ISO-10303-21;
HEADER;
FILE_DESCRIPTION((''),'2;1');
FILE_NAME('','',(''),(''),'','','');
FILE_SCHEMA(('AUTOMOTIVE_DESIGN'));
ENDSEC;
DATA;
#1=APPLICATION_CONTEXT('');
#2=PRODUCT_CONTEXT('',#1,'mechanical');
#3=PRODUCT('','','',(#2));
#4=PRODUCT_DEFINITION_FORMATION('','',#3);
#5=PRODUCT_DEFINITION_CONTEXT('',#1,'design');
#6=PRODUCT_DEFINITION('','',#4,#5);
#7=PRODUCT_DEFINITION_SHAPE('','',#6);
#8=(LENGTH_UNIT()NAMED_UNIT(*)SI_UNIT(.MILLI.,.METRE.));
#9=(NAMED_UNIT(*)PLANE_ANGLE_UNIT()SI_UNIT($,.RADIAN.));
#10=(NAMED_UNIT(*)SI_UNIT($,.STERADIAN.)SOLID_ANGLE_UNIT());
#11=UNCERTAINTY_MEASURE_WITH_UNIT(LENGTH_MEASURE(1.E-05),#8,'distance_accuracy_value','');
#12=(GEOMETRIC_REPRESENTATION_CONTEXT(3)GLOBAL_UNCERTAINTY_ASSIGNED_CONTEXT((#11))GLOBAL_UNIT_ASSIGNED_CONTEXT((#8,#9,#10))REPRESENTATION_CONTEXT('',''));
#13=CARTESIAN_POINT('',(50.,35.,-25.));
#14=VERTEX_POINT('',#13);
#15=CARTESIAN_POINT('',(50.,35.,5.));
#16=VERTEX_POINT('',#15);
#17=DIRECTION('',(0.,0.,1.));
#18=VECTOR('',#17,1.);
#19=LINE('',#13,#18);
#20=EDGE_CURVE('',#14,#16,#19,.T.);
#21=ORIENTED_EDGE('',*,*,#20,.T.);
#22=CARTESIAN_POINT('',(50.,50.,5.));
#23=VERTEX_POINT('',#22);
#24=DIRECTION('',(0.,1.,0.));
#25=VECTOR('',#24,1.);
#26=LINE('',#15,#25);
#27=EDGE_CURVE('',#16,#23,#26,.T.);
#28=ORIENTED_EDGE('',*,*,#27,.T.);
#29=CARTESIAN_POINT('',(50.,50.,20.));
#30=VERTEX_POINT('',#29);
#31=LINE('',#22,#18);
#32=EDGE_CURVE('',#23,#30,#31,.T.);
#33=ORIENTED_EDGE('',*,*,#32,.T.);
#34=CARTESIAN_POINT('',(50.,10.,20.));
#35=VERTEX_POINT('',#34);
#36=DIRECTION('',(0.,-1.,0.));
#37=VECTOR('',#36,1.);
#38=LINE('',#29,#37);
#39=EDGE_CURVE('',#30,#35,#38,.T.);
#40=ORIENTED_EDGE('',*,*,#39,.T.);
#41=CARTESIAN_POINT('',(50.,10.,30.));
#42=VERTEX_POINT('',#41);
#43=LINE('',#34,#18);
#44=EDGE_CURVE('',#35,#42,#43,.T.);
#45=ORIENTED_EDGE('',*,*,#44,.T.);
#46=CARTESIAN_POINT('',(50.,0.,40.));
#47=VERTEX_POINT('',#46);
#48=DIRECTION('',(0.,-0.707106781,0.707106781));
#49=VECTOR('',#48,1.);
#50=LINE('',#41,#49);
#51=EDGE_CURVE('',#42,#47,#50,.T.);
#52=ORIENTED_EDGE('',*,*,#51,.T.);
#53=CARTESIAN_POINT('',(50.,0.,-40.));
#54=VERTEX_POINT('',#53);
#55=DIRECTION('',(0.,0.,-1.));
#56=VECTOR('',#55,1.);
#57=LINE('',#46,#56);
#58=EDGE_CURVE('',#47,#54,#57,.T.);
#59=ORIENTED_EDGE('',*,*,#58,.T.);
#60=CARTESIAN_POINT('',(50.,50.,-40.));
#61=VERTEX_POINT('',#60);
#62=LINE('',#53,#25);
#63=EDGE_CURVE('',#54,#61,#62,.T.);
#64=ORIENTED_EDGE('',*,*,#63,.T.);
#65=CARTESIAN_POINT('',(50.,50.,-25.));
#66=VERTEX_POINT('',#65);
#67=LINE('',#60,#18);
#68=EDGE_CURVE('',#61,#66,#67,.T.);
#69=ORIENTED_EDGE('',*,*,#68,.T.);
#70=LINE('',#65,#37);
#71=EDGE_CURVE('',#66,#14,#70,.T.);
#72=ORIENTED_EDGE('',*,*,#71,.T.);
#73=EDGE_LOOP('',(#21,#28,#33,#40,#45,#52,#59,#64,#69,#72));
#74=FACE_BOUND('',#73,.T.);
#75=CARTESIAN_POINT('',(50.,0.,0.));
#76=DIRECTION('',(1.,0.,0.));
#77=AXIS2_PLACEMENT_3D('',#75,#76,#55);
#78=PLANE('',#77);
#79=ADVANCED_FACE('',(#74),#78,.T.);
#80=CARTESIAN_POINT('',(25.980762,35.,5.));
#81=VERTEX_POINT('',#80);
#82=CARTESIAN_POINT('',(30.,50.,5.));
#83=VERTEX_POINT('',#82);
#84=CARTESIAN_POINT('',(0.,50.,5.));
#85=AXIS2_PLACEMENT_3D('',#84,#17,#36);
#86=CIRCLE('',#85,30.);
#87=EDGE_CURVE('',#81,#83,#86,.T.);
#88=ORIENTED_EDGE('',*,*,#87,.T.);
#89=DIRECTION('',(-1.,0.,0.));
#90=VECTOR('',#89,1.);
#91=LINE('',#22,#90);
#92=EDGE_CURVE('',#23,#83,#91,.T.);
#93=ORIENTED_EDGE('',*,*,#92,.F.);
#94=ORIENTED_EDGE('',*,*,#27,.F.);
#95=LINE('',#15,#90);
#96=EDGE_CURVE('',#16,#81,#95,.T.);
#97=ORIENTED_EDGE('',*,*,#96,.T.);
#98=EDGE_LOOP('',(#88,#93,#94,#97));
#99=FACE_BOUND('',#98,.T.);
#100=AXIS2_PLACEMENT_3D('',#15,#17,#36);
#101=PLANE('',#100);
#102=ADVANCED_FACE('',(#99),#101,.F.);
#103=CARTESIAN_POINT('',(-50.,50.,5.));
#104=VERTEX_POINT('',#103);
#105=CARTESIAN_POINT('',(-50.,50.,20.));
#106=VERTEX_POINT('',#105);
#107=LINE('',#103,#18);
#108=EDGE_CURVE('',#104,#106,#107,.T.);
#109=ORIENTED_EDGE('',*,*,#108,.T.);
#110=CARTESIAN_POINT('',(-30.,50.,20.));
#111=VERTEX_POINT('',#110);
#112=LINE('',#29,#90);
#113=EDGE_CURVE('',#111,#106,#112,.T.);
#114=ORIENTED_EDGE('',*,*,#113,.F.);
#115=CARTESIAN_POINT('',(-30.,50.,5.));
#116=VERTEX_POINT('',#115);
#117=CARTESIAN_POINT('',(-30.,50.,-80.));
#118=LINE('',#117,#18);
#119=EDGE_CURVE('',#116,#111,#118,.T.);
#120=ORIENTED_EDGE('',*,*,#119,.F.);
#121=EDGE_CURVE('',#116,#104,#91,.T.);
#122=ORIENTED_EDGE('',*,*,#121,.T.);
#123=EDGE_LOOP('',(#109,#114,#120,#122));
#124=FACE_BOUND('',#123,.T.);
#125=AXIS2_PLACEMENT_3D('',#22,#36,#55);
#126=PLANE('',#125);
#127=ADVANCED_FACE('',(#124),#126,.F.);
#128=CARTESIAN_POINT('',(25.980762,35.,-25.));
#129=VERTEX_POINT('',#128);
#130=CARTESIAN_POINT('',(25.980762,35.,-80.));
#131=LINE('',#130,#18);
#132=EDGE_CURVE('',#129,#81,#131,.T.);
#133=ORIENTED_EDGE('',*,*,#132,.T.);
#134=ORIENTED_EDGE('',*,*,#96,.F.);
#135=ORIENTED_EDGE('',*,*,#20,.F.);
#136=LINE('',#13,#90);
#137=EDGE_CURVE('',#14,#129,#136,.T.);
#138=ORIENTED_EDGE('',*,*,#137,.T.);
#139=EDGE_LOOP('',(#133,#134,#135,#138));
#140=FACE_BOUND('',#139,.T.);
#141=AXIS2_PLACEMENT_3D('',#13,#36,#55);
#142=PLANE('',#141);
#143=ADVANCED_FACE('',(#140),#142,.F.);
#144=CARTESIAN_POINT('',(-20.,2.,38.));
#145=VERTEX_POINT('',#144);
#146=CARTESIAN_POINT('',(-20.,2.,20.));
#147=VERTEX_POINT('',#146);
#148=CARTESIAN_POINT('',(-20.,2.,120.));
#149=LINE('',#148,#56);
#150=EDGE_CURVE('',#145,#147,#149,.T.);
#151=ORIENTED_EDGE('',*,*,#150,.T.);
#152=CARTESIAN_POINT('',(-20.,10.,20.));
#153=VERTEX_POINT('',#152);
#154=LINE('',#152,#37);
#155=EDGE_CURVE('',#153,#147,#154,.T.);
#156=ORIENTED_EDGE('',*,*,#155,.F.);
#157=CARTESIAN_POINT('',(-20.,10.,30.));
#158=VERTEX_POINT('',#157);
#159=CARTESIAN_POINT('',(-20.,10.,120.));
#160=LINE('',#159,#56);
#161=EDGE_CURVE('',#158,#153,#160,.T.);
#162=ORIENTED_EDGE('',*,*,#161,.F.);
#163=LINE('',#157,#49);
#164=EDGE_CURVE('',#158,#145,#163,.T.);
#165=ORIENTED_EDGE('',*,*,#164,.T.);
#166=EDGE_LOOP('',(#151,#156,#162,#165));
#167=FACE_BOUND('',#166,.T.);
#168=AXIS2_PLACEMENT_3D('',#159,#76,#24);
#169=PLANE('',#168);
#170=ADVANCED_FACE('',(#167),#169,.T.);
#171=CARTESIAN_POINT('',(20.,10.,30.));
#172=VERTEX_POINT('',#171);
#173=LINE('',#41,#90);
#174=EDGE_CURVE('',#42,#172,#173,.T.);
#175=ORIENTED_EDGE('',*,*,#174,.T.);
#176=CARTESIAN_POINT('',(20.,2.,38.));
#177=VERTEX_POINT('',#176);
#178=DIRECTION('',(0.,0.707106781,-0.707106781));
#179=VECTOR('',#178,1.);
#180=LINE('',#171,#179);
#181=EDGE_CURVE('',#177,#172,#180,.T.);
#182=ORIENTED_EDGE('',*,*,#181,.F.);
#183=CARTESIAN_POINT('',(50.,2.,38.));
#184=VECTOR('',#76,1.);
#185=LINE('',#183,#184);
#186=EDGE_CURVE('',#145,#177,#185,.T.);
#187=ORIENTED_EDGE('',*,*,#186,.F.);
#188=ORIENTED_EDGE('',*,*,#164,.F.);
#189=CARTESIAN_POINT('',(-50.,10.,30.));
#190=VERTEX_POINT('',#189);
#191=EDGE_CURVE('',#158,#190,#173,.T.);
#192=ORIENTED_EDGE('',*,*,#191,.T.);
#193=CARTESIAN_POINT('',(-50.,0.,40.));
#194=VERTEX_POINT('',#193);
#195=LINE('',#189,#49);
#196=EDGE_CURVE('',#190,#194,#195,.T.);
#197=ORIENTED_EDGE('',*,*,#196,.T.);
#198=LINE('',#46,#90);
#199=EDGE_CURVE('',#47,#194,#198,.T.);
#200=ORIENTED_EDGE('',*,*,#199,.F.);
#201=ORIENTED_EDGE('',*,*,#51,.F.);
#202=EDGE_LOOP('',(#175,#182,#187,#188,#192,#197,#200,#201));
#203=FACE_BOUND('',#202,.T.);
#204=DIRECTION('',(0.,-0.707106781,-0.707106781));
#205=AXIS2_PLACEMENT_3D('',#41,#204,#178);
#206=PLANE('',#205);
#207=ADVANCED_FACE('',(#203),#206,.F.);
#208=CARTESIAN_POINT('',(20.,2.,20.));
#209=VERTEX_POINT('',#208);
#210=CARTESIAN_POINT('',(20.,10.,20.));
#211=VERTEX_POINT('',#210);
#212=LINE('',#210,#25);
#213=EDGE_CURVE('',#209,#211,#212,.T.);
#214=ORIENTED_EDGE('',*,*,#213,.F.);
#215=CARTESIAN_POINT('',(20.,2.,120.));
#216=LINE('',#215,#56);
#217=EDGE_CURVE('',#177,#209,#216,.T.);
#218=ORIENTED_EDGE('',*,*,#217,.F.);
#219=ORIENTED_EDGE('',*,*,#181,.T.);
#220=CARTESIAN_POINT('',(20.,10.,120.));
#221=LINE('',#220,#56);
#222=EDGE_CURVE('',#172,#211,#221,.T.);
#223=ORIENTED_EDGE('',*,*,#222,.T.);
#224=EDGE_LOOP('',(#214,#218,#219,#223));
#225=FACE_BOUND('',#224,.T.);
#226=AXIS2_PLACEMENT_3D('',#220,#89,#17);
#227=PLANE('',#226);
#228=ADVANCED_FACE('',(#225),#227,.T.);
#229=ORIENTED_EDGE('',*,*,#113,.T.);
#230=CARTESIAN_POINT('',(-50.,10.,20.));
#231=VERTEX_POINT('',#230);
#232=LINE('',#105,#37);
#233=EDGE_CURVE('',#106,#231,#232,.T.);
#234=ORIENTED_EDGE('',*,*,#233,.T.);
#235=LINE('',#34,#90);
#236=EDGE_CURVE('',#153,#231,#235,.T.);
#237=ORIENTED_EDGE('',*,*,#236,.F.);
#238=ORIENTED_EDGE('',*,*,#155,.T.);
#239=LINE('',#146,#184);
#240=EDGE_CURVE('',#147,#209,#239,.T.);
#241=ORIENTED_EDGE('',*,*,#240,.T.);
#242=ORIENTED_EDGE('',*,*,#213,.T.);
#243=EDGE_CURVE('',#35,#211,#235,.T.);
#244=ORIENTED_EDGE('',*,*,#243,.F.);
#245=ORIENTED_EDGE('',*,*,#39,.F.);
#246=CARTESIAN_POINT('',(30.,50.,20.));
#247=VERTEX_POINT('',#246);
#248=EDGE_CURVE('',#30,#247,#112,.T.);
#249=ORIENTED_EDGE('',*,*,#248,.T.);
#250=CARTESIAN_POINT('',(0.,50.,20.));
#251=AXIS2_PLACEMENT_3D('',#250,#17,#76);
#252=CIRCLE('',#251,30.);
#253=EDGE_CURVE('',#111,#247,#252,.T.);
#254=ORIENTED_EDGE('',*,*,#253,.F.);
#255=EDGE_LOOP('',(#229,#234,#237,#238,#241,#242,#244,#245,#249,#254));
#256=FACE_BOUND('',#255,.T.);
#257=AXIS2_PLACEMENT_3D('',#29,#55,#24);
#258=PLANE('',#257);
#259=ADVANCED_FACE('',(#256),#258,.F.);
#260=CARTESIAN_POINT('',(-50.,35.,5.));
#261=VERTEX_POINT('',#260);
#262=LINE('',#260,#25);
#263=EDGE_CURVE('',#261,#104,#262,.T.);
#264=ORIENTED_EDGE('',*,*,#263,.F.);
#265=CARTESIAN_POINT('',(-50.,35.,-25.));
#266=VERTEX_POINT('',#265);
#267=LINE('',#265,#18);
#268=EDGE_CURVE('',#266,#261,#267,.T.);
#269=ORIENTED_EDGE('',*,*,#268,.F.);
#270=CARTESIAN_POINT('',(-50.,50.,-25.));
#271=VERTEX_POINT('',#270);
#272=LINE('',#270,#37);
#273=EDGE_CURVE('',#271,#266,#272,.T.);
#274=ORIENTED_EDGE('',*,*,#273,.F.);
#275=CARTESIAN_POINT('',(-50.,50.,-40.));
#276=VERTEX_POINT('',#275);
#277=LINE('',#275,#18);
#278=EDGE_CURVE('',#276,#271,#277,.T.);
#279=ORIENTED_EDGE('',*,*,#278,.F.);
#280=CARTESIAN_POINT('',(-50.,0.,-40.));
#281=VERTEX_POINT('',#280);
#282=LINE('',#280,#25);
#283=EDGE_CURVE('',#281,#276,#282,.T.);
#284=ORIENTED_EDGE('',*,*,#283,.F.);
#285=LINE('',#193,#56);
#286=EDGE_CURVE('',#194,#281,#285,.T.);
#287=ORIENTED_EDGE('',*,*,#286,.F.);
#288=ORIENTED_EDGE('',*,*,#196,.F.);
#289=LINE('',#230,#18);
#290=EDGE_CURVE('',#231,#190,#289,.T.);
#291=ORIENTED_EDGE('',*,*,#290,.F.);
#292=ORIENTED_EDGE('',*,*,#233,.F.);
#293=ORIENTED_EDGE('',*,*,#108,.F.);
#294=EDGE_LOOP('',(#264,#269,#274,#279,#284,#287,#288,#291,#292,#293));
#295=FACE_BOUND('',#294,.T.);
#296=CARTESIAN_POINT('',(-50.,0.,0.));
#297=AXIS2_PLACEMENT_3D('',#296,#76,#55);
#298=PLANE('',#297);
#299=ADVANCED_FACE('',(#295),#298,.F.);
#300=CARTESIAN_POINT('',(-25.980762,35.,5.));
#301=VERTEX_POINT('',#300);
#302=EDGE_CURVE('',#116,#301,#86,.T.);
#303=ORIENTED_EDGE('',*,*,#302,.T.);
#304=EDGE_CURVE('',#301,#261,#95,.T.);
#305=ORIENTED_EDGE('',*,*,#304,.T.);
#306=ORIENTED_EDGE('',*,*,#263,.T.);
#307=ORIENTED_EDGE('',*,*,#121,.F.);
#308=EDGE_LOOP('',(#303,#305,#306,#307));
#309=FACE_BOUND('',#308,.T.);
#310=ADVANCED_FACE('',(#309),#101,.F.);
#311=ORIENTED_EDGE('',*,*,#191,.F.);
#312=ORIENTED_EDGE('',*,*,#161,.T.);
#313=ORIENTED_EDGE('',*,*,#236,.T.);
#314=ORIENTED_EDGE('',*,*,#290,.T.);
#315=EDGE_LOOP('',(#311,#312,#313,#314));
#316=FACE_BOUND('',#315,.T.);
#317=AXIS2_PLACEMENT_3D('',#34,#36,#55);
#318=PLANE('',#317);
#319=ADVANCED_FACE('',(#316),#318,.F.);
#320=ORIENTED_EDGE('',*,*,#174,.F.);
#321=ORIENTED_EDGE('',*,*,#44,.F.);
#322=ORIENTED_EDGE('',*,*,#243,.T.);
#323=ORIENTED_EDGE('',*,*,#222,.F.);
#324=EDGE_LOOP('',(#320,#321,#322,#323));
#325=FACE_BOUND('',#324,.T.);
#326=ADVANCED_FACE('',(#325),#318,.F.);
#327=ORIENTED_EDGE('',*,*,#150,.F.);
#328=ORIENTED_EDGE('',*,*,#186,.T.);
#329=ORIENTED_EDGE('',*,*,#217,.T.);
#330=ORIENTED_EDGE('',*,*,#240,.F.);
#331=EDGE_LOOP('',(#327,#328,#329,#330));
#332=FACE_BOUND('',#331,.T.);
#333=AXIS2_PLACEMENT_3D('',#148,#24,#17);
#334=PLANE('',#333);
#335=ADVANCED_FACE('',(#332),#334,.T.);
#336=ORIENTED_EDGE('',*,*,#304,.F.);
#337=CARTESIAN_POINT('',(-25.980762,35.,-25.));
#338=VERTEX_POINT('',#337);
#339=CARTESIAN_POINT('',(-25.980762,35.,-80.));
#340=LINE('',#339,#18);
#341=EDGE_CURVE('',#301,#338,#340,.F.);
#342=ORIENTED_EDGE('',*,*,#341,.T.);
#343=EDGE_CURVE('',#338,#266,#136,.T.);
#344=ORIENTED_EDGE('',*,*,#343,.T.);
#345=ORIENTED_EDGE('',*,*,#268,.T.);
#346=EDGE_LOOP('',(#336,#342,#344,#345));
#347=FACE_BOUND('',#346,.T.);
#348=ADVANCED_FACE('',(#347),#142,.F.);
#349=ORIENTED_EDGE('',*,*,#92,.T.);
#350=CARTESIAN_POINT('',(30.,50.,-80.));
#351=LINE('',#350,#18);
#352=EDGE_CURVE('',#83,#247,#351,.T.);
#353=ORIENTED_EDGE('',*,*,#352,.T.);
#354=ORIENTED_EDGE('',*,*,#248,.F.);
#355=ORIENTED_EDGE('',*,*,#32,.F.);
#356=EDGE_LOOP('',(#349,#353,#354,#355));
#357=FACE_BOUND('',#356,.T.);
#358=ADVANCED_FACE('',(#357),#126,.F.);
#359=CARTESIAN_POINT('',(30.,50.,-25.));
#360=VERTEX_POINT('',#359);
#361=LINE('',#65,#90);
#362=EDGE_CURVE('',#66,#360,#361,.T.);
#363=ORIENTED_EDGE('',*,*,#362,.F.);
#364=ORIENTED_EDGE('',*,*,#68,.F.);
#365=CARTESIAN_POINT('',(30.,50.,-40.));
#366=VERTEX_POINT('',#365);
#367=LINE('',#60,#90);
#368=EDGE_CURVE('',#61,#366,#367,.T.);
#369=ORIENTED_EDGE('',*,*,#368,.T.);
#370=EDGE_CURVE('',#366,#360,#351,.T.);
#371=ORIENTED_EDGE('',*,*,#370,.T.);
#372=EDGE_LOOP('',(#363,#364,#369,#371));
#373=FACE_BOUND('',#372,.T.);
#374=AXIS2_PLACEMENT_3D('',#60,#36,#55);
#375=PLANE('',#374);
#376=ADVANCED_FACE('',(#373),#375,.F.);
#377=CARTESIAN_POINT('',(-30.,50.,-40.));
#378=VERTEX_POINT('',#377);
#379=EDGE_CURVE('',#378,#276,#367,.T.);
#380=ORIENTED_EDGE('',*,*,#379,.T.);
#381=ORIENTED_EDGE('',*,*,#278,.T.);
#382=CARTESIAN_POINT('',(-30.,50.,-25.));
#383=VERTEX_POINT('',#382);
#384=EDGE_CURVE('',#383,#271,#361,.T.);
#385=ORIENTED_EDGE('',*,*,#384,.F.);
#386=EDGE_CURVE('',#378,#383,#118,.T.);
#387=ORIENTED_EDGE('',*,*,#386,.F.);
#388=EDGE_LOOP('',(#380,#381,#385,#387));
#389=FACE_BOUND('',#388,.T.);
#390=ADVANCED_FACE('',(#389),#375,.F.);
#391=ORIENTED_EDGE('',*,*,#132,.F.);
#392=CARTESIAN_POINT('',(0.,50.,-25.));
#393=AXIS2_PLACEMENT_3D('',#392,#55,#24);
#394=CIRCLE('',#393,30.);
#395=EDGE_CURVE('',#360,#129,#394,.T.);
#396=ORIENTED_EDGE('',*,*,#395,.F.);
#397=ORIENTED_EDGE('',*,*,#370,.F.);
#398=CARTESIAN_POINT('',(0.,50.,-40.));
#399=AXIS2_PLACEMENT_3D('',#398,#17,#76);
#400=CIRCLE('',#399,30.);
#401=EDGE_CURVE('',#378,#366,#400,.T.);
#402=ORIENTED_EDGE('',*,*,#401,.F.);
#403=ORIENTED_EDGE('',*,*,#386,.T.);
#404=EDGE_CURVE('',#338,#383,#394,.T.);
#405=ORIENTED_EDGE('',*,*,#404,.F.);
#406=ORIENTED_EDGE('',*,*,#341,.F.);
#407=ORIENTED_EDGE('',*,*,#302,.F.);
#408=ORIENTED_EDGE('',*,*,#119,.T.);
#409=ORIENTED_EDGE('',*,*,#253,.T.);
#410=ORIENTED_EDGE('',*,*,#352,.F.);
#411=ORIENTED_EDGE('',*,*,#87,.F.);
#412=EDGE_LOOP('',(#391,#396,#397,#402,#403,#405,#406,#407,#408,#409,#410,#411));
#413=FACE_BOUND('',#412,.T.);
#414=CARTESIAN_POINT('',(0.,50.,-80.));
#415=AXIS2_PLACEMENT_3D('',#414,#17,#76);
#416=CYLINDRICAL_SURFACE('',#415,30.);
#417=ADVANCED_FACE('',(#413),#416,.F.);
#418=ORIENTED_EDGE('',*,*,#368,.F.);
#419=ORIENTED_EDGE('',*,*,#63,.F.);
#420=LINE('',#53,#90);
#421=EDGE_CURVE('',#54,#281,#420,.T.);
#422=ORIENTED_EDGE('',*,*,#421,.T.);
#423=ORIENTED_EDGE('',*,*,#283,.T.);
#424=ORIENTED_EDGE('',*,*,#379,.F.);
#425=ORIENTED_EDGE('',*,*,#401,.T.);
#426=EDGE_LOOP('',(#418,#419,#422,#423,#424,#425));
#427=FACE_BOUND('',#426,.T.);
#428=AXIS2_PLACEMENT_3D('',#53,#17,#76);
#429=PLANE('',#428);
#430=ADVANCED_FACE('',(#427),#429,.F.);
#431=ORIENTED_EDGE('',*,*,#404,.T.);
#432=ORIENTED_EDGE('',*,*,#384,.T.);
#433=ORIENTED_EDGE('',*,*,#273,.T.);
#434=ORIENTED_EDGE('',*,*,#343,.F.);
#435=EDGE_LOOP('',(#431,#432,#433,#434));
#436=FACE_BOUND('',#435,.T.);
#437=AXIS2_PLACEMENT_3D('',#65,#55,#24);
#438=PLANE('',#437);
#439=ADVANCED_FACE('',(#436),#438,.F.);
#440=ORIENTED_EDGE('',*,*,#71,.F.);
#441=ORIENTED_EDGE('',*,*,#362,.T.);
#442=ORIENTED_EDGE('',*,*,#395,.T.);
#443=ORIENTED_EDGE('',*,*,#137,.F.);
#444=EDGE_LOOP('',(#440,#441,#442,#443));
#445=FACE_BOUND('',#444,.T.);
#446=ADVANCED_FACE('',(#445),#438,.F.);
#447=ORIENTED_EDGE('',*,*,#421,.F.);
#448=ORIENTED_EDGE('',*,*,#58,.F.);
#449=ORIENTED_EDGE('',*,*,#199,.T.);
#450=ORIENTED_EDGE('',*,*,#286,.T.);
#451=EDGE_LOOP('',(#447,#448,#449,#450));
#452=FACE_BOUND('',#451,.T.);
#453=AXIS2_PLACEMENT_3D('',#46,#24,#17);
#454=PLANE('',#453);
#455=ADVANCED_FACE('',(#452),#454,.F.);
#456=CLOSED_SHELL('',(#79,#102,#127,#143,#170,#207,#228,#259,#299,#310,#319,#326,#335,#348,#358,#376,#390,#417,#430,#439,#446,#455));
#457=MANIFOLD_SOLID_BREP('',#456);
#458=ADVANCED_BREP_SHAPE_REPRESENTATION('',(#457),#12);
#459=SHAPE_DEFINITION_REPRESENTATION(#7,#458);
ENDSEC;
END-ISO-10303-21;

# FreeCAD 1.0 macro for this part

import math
import FreeCAD as App
import Part
import Sketcher


def add_polygon(sketch, points):
    """Adds a closed chain of lines whose ends are joined by coincident constraints."""
    first, n = sketch.GeometryCount, len(points)
    for a, b in zip(points, points[1:] + points[:1]):
        sketch.addGeometry(Part.LineSegment(App.Vector(*a, 0), App.Vector(*b, 0)), False)
    for i in range(n):
        sketch.addConstraint(Sketcher.Constraint("Coincident", first + i, 2, first + (i + 1) % n, 1))

doc = App.newDocument("Part")
body = doc.addObject("PartDesign::Body", "Body")

# Sketch on YZ plane
sketch1 = doc.addObject("Sketcher::SketchObject", "Sketch")
body.addObject(sketch1)
sketch1.AttachmentSupport = (doc.YZ_Plane, [""])
sketch1.MapMode = "FlatFace"
add_polygon(sketch1, [(0, 40), (0, -40), (50, -40), (50, -25), (35, -25), (35, 5), (50, 5), (50, 20), (10, 20), (10, 30)])  # lines 0-9
sketch1.addConstraint(Sketcher.Constraint("Vertical", 0))
sketch1.addConstraint(Sketcher.Constraint("Horizontal", 1))
sketch1.addConstraint(Sketcher.Constraint("Vertical", 2))
sketch1.addConstraint(Sketcher.Constraint("Horizontal", 3))
sketch1.addConstraint(Sketcher.Constraint("Vertical", 4))
sketch1.addConstraint(Sketcher.Constraint("Horizontal", 5))
sketch1.addConstraint(Sketcher.Constraint("Vertical", 6))
sketch1.addConstraint(Sketcher.Constraint("Horizontal", 7))
sketch1.addConstraint(Sketcher.Constraint("Vertical", 8))
sketch1.addConstraint(Sketcher.Constraint("Symmetric", 0, 2, 9, 2, -1, 1))
sketch1.addConstraint(Sketcher.Constraint("Vertical", 2, 2, 5, 2))
sketch1.addConstraint(Sketcher.Constraint("Equal", 5, 2))
sketch1.addConstraint(Sketcher.Constraint("Equal", 2, 6))
sketch1.addConstraint(Sketcher.Constraint("DistanceX", 1, 1, 1, 2, 50.0))
sketch1.addConstraint(Sketcher.Constraint("DistanceX", 3, 2, 3, 1, 15.0))
sketch1.addConstraint(Sketcher.Constraint("DistanceX", 7, 2, 7, 1, 40.0))
sketch1.addConstraint(Sketcher.Constraint("DistanceY", 0, 2, 0, 1, 80.0))
sketch1.addConstraint(Sketcher.Constraint("DistanceY", 4, 1, 4, 2, 30.0))
sketch1.addConstraint(Sketcher.Constraint("DistanceY", 8, 1, 8, 2, 10.0))
pad1 = doc.addObject("PartDesign::Pad", "Pad")
body.addObject(pad1)
pad1.Profile = sketch1
pad1.Length = 100
pad1.Midplane = True

# Sketch on XY plane
sketch2 = doc.addObject("Sketcher::SketchObject", "Sketch001")
body.addObject(sketch2)
sketch2.AttachmentSupport = (doc.XY_Plane, [""])
sketch2.MapMode = "FlatFace"
sketch2.AttachmentOffset = App.Placement(App.Vector(0, 0, 20), App.Rotation())
sketch2.addGeometry(Part.LineSegment(App.Vector(30, 50, 0), App.Vector(-30, 50, 0)), False)
sketch2.addGeometry(Part.ArcOfCircle(Part.Circle(App.Vector(0, 50, 0), App.Vector(0, 0, 1), 30), math.radians(180), math.radians(360)), False)
sketch2.addConstraint(Sketcher.Constraint("Coincident", 0, 1, 1, 2))
sketch2.addConstraint(Sketcher.Constraint("Coincident", 1, 1, 0, 2))
sketch2.addConstraint(Sketcher.Constraint("Horizontal", 0))
sketch2.addConstraint(Sketcher.Constraint("PointOnObject", 1, 3, -2))
sketch2.addConstraint(Sketcher.Constraint("Horizontal", 1, 3, 0, 1))
sketch2.addConstraint(Sketcher.Constraint("Radius", 1, 30.0))
sketch2.addConstraint(Sketcher.Constraint("DistanceY", -1, 1, 1, 3, 50.0))
pocket1 = doc.addObject("PartDesign::Pocket", "Pocket")
body.addObject(pocket1)
pocket1.Profile = sketch2
pocket1.Length = 100

# Sketch on XY plane
sketch3 = doc.addObject("Sketcher::SketchObject", "Sketch002")
body.addObject(sketch3)
sketch3.AttachmentSupport = (doc.XY_Plane, [""])
sketch3.MapMode = "FlatFace"
sketch3.AttachmentOffset = App.Placement(App.Vector(0, 0, 20), App.Rotation())
add_polygon(sketch3, [(-20, 10), (-20, 2), (20, 2), (20, 10)])  # lines 0-3
sketch3.addConstraint(Sketcher.Constraint("Vertical", 0))
sketch3.addConstraint(Sketcher.Constraint("Horizontal", 1))
sketch3.addConstraint(Sketcher.Constraint("Vertical", 2))
sketch3.addConstraint(Sketcher.Constraint("Horizontal", 3))
sketch3.addConstraint(Sketcher.Constraint("DistanceX", 1, 1, 1, 2, 40.0))
sketch3.addConstraint(Sketcher.Constraint("DistanceY", 0, 2, 0, 1, 8.0))
sketch3.addConstraint(Sketcher.Constraint("DistanceX", 0, 2, -1, 1, 20.0))
sketch3.addConstraint(Sketcher.Constraint("DistanceY", -1, 1, 0, 2, 2.0))
pocket2 = doc.addObject("PartDesign::Pocket", "Pocket001")
body.addObject(pocket2)
pocket2.Profile = sketch3
pocket2.Length = 100
pocket2.Reversed = True

doc.recompute()
